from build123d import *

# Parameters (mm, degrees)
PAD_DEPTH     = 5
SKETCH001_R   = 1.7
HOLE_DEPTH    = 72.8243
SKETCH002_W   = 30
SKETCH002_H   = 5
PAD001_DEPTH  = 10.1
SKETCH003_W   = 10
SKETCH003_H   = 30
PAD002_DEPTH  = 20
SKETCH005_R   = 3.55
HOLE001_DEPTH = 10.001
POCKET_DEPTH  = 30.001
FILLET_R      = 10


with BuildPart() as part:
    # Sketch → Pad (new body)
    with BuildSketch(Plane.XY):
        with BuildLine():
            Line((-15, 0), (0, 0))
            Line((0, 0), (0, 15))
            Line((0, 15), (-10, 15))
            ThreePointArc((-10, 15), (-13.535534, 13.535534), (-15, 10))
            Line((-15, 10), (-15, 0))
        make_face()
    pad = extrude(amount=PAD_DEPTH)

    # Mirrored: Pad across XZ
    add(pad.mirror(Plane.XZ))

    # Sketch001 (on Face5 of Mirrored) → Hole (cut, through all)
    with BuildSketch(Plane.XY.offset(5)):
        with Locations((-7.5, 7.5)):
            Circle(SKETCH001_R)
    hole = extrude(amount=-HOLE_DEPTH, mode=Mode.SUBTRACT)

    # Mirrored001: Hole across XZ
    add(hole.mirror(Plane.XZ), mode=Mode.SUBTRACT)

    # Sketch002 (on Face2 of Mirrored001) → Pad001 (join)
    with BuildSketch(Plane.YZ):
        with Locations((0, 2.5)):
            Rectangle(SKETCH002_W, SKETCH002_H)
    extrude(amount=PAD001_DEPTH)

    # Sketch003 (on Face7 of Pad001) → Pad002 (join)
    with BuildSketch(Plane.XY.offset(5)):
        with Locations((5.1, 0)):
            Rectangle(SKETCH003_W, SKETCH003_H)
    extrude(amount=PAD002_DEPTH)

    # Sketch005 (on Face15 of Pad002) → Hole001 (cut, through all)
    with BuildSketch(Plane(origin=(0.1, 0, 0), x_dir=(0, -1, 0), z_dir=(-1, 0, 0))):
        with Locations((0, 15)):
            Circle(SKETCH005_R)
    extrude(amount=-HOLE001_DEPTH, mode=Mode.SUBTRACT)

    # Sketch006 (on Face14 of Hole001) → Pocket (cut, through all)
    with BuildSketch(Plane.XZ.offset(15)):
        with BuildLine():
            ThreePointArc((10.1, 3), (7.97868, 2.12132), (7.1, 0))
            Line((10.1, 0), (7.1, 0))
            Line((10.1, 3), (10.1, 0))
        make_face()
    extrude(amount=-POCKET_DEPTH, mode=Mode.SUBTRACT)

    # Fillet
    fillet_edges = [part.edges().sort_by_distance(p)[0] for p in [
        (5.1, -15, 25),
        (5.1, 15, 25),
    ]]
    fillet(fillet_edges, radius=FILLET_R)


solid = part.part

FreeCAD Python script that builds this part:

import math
import FreeCAD as App
import Part
import Sketcher

V = App.Vector
Q = App.Units.Quantity


def edges_at(feature, points):
    """Names of the edges that pass closest to the given points."""
    edges = feature.Shape.Edges
    near = lambda p: min(range(len(edges)), key=lambda i: edges[i].distToShape(Part.Vertex(*p))[0])
    return sorted({f"Edge{near(p) + 1}" for p in points})


def add_polygon(sketch, points):
    """Adds a closed chain of lines whose ends are joined by coincident constraints."""
    first, n = sketch.GeometryCount, len(points)
    for a, b in zip(points, points[1:] + points[:1]):
        sketch.addGeometry(Part.LineSegment(App.Vector(*a, 0), App.Vector(*b, 0)), False)
    for i in range(n):
        sketch.addConstraint(Sketcher.Constraint("Coincident", first + i, 2, first + (i + 1) % n, 1))

doc = App.newDocument("Part")
body = doc.addObject("PartDesign::Body", "Body")

# Sketch on XY plane
sketch1 = doc.addObject("Sketcher::SketchObject", "Sketch")
body.addObject(sketch1)
sketch1.AttachmentSupport = (doc.XY_Plane, [""])
sketch1.MapMode = "FlatFace"
sketch1.addGeometry([
    Part.LineSegment(V(-15, 0, 0), V(0, 0, 0)),  # 0
    Part.LineSegment(V(0, 0, 0), V(0, 15, 0)),  # 1
    Part.LineSegment(V(0, 15, 0), V(-10, 15, 0)),  # 2
    Part.ArcOfCircle(Part.Circle(V(-10, 10, 0), V(0, 0, 1), 5), math.radians(90), math.radians(180)),  # 3
    Part.LineSegment(V(-15, 10, 0), V(-15, 0, 0)),  # 4
], False)
sketch1.addConstraint([
    Sketcher.Constraint("Coincident", 0, 2, 1, 1),
    Sketcher.Constraint("Coincident", 1, 2, 2, 1),
    Sketcher.Constraint("Tangent", 2, 2, 3, 1),
    Sketcher.Constraint("Tangent", 3, 2, 4, 1),
    Sketcher.Constraint("Coincident", 4, 2, 0, 1),
    Sketcher.Constraint("Horizontal", 0),
    Sketcher.Constraint("Vertical", 1),
    Sketcher.Constraint("Horizontal", 2),
    Sketcher.Constraint("Vertical", 4),
    Sketcher.Constraint("Coincident", 0, 2, -1, 1),
    Sketcher.Constraint("Equal", 0, 1),
    Sketcher.Constraint("Radius", 3, Q("5 mm")),
    Sketcher.Constraint("DistanceX", 0, 1, 0, 2, Q("15 mm")),
])
pad1 = doc.addObject("PartDesign::Pad", "Pad")
body.addObject(pad1)
pad1.Profile = sketch1
pad1.Length = 5
doc.recompute()

mirrored = doc.addObject("PartDesign::Mirrored", "Mirrored")
body.addObject(mirrored)
mirrored.Originals = [pad1]
mirrored.MirrorPlane = (doc.XZ_Plane, [""])
body.Tip = mirrored

# Sketch on XY plane
sketch2 = doc.addObject("Sketcher::SketchObject", "Sketch001")
body.addObject(sketch2)
sketch2.AttachmentSupport = (doc.XY_Plane, [""])
sketch2.MapMode = "FlatFace"
sketch2.AttachmentOffset = App.Placement(V(0, 0, 5), App.Rotation())
sketch2.addGeometry(Part.Circle(V(-7.5, 7.5, 0), V(0, 0, 1), 1.7), False)
sketch2.addConstraint([
    Sketcher.Constraint("Diameter", 0, Q("3.4 mm")),
    Sketcher.Constraint("DistanceX", 0, 3, -1, 1, Q("7.5 mm")),
    Sketcher.Constraint("DistanceY", -1, 1, 0, 3, Q("7.5 mm")),
])
pocket1 = doc.addObject("PartDesign::Pocket", "Pocket")
body.addObject(pocket1)
pocket1.Profile = sketch2
pocket1.Type = "ThroughAll"
doc.recompute()

mirrored2 = doc.addObject("PartDesign::Mirrored", "Mirrored001")
body.addObject(mirrored2)
mirrored2.Originals = [pocket1]
mirrored2.MirrorPlane = (doc.XZ_Plane, [""])
body.Tip = mirrored2

# Sketch on YZ plane
sketch3 = doc.addObject("Sketcher::SketchObject", "Sketch002")
body.addObject(sketch3)
sketch3.AttachmentSupport = (doc.YZ_Plane, [""])
sketch3.MapMode = "FlatFace"
add_polygon(sketch3, [(-15, 5), (-15, 0), (15, 0), (15, 5)])  # lines 0-3
sketch3.addConstraint([
    Sketcher.Constraint("Vertical", 0),
    Sketcher.Constraint("Horizontal", 1),
    Sketcher.Constraint("Vertical", 2),
    Sketcher.Constraint("Horizontal", 3),
    Sketcher.Constraint("Symmetric", 0, 2, 1, 2, -1, 1),
    Sketcher.Constraint("DistanceX", 1, 1, 1, 2, Q("30 mm")),
    Sketcher.Constraint("DistanceY", 0, 2, 0, 1, Q("5 mm")),
])
pad2 = doc.addObject("PartDesign::Pad", "Pad001")
body.addObject(pad2)
pad2.Profile = sketch3
pad2.Length = 10.1

# Sketch on XY plane
sketch4 = doc.addObject("Sketcher::SketchObject", "Sketch003")
body.addObject(sketch4)
sketch4.AttachmentSupport = (doc.XY_Plane, [""])
sketch4.MapMode = "FlatFace"
sketch4.AttachmentOffset = App.Placement(V(0, 0, 5), App.Rotation())
add_polygon(sketch4, [(0, 15), (0, -15), (10, -15), (10, 15)])  # lines 0-3
sketch4.addConstraint([
    Sketcher.Constraint("Vertical", 0),
    Sketcher.Constraint("Horizontal", 1),
    Sketcher.Constraint("Vertical", 2),
    Sketcher.Constraint("Horizontal", 3),
    Sketcher.Constraint("DistanceX", 1, 1, 1, 2, Q("10 mm")),
    Sketcher.Constraint("DistanceY", 0, 2, 0, 1, Q("30 mm")),
    Sketcher.Constraint("DistanceY", 0, 2, -1, 1, Q("15 mm")),
    Sketcher.Constraint("DistanceX", -1, 1, 0, 2, Q("0.1 mm")),
])
pad3 = doc.addObject("PartDesign::Pad", "Pad002")
body.addObject(pad3)
pad3.Profile = sketch4
pad3.Length = 20

# Sketch on YZ plane
sketch5 = doc.addObject("Sketcher::SketchObject", "Sketch004")
body.addObject(sketch5)
sketch5.AttachmentSupport = (doc.YZ_Plane, [""])
sketch5.MapMode = "FlatFace"
sketch5.AttachmentOffset = App.Placement(V(0, 0, 0.1), App.Rotation())
sketch5.addGeometry(Part.Circle(V(0, 15, 0), V(0, 0, 1), 3.5), False)
sketch5.addConstraint([
    Sketcher.Constraint("PointOnObject", 0, 3, -2),
    Sketcher.Constraint("Diameter", 0, Q("7.1 mm")),
    Sketcher.Constraint("DistanceY", -1, 1, 0, 3, Q("15 mm")),
])
pocket2 = doc.addObject("PartDesign::Pocket", "Pocket001")
body.addObject(pocket2)
pocket2.Profile = sketch5
pocket2.Type = "ThroughAll"
pocket2.Reversed = True

# Sketch on XZ plane
sketch6 = doc.addObject("Sketcher::SketchObject", "Sketch005")
body.addObject(sketch6)
sketch6.AttachmentSupport = (doc.XZ_Plane, [""])
sketch6.MapMode = "FlatFace"
sketch6.AttachmentOffset = App.Placement(V(0, 0, 15), App.Rotation())
sketch6.addGeometry([
    Part.ArcOfCircle(Part.Circle(V(10.1, 0, 0), V(0, 0, 1), 3), math.radians(90), math.radians(180)),
    Part.LineSegment(V(7.1, 0, 0), V(10.1, 0, 0)),
    Part.LineSegment(V(10.1, 0, 0), V(10.1, 3, 0)),
], False)
sketch6.addConstraint([
    Sketcher.Constraint("Coincident", 0, 2, 1, 1),
    Sketcher.Constraint("Coincident", 1, 2, 2, 1),
    Sketcher.Constraint("Coincident", 2, 2, 0, 1),
    Sketcher.Constraint("Horizontal", 1),
    Sketcher.Constraint("Vertical", 2),
    Sketcher.Constraint("Coincident", 1, 2, 0, 3),
    Sketcher.Constraint("PointOnObject", 0, 3, -1),
    Sketcher.Constraint("Radius", 0, Q("3.000001 mm")),
    Sketcher.Constraint("DistanceX", -1, 1, 0, 3, Q("10.100001 mm")),
])
pocket3 = doc.addObject("PartDesign::Pocket", "Pocket002")
body.addObject(pocket3)
pocket3.Profile = sketch6
pocket3.Type = "ThroughAll"
doc.recompute()

fillet = doc.addObject("PartDesign::Fillet", "Fillet")
body.addObject(fillet)
fillet.Base = (pocket3, edges_at(pocket3, [(5.1, -15, 25), (5.1, 15, 25)]))
fillet.Radius = 10

doc.recompute()
